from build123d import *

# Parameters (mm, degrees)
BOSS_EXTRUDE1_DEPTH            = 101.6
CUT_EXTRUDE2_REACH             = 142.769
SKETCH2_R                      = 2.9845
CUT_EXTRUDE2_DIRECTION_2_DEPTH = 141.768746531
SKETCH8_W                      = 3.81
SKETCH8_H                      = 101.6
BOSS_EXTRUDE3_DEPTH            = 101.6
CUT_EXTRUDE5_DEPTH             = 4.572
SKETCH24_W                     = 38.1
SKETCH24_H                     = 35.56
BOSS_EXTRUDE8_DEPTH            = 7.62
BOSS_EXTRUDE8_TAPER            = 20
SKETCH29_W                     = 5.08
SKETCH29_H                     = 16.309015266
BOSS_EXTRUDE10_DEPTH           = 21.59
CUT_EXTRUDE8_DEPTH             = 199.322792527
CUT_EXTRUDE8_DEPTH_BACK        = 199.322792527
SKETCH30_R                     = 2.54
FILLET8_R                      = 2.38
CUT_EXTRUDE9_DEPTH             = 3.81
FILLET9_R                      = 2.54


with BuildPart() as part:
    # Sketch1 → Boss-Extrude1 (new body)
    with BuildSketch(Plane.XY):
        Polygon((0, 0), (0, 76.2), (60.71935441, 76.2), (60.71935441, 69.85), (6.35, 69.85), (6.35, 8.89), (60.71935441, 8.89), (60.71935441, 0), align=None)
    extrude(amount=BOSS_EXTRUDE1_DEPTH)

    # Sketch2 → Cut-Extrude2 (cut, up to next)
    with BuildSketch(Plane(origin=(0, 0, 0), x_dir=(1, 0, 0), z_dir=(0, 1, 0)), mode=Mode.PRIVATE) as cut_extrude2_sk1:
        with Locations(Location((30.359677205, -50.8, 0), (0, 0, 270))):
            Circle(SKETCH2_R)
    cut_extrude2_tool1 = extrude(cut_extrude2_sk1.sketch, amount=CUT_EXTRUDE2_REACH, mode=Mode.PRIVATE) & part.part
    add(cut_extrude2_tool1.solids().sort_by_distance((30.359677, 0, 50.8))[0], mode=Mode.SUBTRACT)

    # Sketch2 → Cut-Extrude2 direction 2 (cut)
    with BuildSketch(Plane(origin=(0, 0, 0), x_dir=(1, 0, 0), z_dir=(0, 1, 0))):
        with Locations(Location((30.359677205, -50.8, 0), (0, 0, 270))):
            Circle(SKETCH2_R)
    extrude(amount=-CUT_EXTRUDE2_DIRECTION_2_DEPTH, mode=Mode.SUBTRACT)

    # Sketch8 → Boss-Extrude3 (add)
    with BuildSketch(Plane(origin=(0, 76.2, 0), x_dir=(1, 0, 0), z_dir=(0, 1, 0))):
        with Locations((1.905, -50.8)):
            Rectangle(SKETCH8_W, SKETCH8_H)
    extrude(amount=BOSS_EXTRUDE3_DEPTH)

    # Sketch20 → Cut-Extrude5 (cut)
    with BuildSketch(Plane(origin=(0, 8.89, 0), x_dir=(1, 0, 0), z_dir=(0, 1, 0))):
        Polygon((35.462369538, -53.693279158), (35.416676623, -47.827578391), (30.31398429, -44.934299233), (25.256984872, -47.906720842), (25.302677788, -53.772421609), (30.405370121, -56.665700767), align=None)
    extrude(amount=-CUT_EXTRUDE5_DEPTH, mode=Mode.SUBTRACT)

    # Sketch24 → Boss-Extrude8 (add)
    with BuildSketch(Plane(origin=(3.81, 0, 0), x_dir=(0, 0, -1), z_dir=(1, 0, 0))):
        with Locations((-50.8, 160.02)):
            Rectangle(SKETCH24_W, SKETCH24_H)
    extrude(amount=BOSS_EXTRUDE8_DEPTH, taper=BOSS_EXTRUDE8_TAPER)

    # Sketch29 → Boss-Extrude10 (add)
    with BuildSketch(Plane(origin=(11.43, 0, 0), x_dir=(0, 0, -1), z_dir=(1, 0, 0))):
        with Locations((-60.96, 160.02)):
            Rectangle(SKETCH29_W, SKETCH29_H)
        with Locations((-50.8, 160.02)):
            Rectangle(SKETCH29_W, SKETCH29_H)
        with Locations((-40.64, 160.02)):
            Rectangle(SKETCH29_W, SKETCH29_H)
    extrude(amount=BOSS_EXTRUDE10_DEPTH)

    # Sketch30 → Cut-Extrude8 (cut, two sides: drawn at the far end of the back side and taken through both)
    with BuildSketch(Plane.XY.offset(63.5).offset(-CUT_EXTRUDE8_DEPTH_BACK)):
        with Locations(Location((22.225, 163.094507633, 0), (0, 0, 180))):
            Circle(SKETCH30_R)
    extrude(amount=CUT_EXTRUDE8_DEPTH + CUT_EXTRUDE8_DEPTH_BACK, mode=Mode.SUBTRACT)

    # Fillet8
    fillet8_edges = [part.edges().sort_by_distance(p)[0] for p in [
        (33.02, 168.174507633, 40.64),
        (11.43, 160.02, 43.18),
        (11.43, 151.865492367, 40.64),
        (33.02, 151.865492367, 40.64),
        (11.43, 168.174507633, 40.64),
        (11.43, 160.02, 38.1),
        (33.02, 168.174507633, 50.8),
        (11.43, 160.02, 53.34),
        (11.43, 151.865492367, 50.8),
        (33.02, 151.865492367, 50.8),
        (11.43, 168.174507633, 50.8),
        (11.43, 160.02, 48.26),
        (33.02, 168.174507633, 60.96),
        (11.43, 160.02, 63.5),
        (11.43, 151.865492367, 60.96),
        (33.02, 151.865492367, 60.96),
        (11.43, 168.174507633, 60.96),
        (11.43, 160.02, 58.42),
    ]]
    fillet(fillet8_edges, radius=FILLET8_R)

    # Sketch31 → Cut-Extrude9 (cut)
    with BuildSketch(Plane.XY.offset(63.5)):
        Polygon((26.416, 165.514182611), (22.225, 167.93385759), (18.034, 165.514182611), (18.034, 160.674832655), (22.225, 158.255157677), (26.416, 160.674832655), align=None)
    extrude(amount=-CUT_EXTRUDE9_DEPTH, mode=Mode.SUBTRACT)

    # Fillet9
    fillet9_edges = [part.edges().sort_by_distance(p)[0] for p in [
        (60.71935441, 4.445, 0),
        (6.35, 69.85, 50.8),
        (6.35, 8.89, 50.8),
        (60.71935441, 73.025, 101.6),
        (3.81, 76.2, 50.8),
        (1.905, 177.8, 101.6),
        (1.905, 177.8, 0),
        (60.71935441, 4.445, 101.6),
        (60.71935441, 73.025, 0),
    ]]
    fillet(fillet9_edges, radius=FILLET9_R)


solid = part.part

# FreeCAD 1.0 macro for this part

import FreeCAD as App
import Part
import Sketcher

V = App.Vector
Q = App.Units.Quantity


def edges_at(feature, points):
    """Names of the edges that pass closest to the given points."""
    edges = feature.Shape.Edges
    near = lambda p: min(range(len(edges)), key=lambda i: edges[i].distToShape(Part.Vertex(*p))[0])
    return sorted({f"Edge{near(p) + 1}" for p in points})


def add_polygon(sketch, points):
    """Adds a closed chain of lines whose ends are joined by coincident constraints."""
    first, n = sketch.GeometryCount, len(points)
    for a, b in zip(points, points[1:] + points[:1]):
        sketch.addGeometry(Part.LineSegment(App.Vector(*a, 0), App.Vector(*b, 0)), False)
    for i in range(n):
        sketch.addConstraint(Sketcher.Constraint("Coincident", first + i, 2, first + (i + 1) % n, 1))

doc = App.newDocument("Part")
body = doc.addObject("PartDesign::Body", "Body")

# Sketch on XY plane
sketch1 = body.newObject("Sketcher::SketchObject", "Sketch")
sketch1.AttachmentSupport = (doc.getObject("XY_Plane"), [""])
sketch1.MapMode = "FlatFace"
add_polygon(sketch1, [(0, 76), (0, 0), (61, 0), (61, 9), (6, 9), (6, 70), (61, 70), (61, 76)])  # lines 0-7
sketch1.addConstraint([
    Sketcher.Constraint("Vertical", 0),
    Sketcher.Constraint("Horizontal", 1),
    Sketcher.Constraint("Vertical", 2),
    Sketcher.Constraint("Horizontal", 3),
    Sketcher.Constraint("Vertical", 4),
    Sketcher.Constraint("Horizontal", 5),
    Sketcher.Constraint("Vertical", 6),
    Sketcher.Constraint("Horizontal", 7),
    Sketcher.Constraint("Coincident", 0, 2, -1, 1),
    Sketcher.Constraint("Vertical", 2, 2, 5, 2),
    Sketcher.Constraint("DistanceY", 0, 2, 0, 1, Q("3 in")),
    Sketcher.Constraint("DistanceY", 4, 1, 4, 2, Q("2.4 in")),
    Sketcher.Constraint("DistanceY", 2, 1, 2, 2, Q("0.35 in")),
    Sketcher.Constraint("DistanceX", -1, 1, 3, 2, Q("0.25 in")),
    Sketcher.Constraint("DistanceX", 1, 1, 1, 2, Q("60.719354 mm")),
])
pad1 = body.newObject("PartDesign::Pad", "Pad")
pad1.Profile = sketch1
pad1.Length = Q("4 in")

# Sketch on XZ plane
sketch2 = body.newObject("Sketcher::SketchObject", "Sketch001")
sketch2.AttachmentSupport = (doc.getObject("XZ_Plane"), [""])
sketch2.MapMode = "FlatFace"
sketch2.addGeometry(Part.Circle(V(30.4, 50.8, 0), V(0, 0, 1), 3), False)
sketch2.addConstraint([
    Sketcher.Constraint("Diameter", 0, Q("0.235 in")),
    Sketcher.Constraint("DistanceY", -1, 1, 0, 3, Q("2 in")),
    Sketcher.Constraint("DistanceX", -1, 1, 0, 3, Q("30.359677 mm")),
])
pocket1 = body.newObject("PartDesign::Pocket", "Pocket")
pocket1.Profile = sketch2
pocket1.Type = "UpToFirst"

# Sketch on XZ plane
sketch3 = body.newObject("Sketcher::SketchObject", "Sketch002")
sketch3.AttachmentSupport = (doc.getObject("XZ_Plane"), [""])
sketch3.MapMode = "FlatFace"
sketch3.addGeometry(Part.Circle(V(30.4, 50.8, 0), V(0, 0, 1), 3), False)
sketch3.addConstraint([
    Sketcher.Constraint("Diameter", 0, Q("0.235 in")),
    Sketcher.Constraint("DistanceY", -1, 1, 0, 3, Q("2 in")),
    Sketcher.Constraint("DistanceX", -1, 1, 0, 3, Q("30.359677 mm")),
])
pocket2 = body.newObject("PartDesign::Pocket", "Pocket001")
pocket2.Profile = sketch3
pocket2.Length = 141.768747
pocket2.Reversed = True

# Sketch on XZ plane
sketch4 = body.newObject("Sketcher::SketchObject", "Sketch003")
sketch4.AttachmentSupport = (doc.getObject("XZ_Plane"), [""])
sketch4.MapMode = "FlatFace"
sketch4.AttachmentOffset = App.Placement(V(0, 0, -3 * 25.4), App.Rotation())
add_polygon(sketch4, [(0, 0), (0, 101.6), (3.8, 101.6), (3.8, 0)])  # lines 0-3
sketch4.addConstraint([
    Sketcher.Constraint("Vertical", 0),
    Sketcher.Constraint("Horizontal", 1),
    Sketcher.Constraint("Vertical", 2),
    Sketcher.Constraint("Horizontal", 3),
    Sketcher.Constraint("Coincident", 3, 2, -1, 1),
    Sketcher.Constraint("DistanceY", 0, 1, 0, 2, Q("4 in")),
    Sketcher.Constraint("DistanceX", 1, 1, 1, 2, Q("0.15 in")),
])
pad2 = body.newObject("PartDesign::Pad", "Pad001")
pad2.Profile = sketch4
pad2.Length = Q("4 in")
pad2.Reversed = True

# Sketch on XZ plane
sketch5 = body.newObject("Sketcher::SketchObject", "Sketch004")
sketch5.AttachmentSupport = (doc.getObject("XZ_Plane"), [""])
sketch5.MapMode = "FlatFace"
sketch5.AttachmentOffset = App.Placement(V(0, 0, -0.35 * 25.4), App.Rotation())
add_polygon(sketch5, [(35, 54), (35, 48), (30, 45), (25, 48), (25, 54), (30, 57)])  # lines 0-5
sketch5.addConstraint([
    Sketcher.Constraint("Parallel", 0, 3),
    Sketcher.Constraint("Parallel", 1, 4),
    Sketcher.Constraint("Parallel", 2, 5),
    Sketcher.Constraint("Equal", 0, 1),
    Sketcher.Constraint("Equal", 1, 2),
    Sketcher.Constraint("Equal", 2, 3),
    Sketcher.Constraint("DistanceY", -1, 1, 1, 2, Q("44.934299 mm")),
    Sketcher.Constraint("DistanceY", -1, 1, 4, 2, Q("56.665701 mm")),
    Sketcher.Constraint("DistanceX", 2, 2, 1, 2, Q("5.056999 mm")),
    Sketcher.Constraint("DistanceY", 2, 2, 3, 2, Q("5.865701 mm")),
    Sketcher.Constraint("DistanceX", 3, 2, 0, 2, Q("10.113999 mm")),
    Sketcher.Constraint("DistanceX", -1, 1, 4, 2, Q("30.40537 mm")),
])
pocket3 = body.newObject("PartDesign::Pocket", "Pocket002")
pocket3.Profile = sketch5
pocket3.Length = Q("0.18 in")
pocket3.Reversed = True

# Sketch on YZ plane
sketch6 = body.newObject("Sketcher::SketchObject", "Sketch005")
sketch6.AttachmentSupport = (doc.getObject("YZ_Plane"), [""])
sketch6.MapMode = "FlatFace"
sketch6.AttachmentOffset = App.Placement(V(0, 0, 0.15 * 25.4), App.Rotation())
add_polygon(sketch6, [(178, 70), (142, 70), (142, 32), (178, 32)])  # lines 0-3
sketch6.addConstraint([
    Sketcher.Constraint("Horizontal", 0),
    Sketcher.Constraint("Vertical", 1),
    Sketcher.Constraint("Horizontal", 2),
    Sketcher.Constraint("Vertical", 3),
    Sketcher.Constraint("DistanceX", 0, 2, 0, 1, Q("1.4 in")),
    Sketcher.Constraint("DistanceY", 1, 2, 1, 1, Q("1.5 in")),
    Sketcher.Constraint("DistanceX", -1, 1, 2, 2, Q("7 in")),
    Sketcher.Constraint("DistanceY", -1, 1, 0, 2, Q("2.75 in")),
])
pad3 = body.newObject("PartDesign::Pad", "Pad002")
pad3.Profile = sketch6
pad3.Length = Q("0.3 in")
pad3.TaperAngle = -20

# Sketch on YZ plane
sketch7 = body.newObject("Sketcher::SketchObject", "Sketch006")
sketch7.AttachmentSupport = (doc.getObject("YZ_Plane"), [""])
sketch7.MapMode = "FlatFace"
sketch7.AttachmentOffset = App.Placement(V(0, 0, 0.45 * 25.4), App.Rotation())
add_polygon(sketch7, [(168, 64), (152, 64), (152, 58), (168, 58)])  # lines 0-3
add_polygon(sketch7, [(168, 53), (152, 53), (152, 48), (168, 48)])  # lines 4-7
add_polygon(sketch7, [(168, 43), (152, 43), (152, 38), (168, 38)])  # lines 8-11
sketch7.addConstraint([
    Sketcher.Constraint("Horizontal", 0),
    Sketcher.Constraint("Vertical", 1),
    Sketcher.Constraint("Horizontal", 2),
    Sketcher.Constraint("Vertical", 3),
    Sketcher.Constraint("Horizontal", 4),
    Sketcher.Constraint("Vertical", 5),
    Sketcher.Constraint("Horizontal", 6),
    Sketcher.Constraint("Vertical", 7),
    Sketcher.Constraint("Horizontal", 8),
    Sketcher.Constraint("Vertical", 9),
    Sketcher.Constraint("Horizontal", 10),
    Sketcher.Constraint("Vertical", 11),
    Sketcher.Constraint("Vertical", 1, 2, 4, 2),
    Sketcher.Constraint("Vertical", 3, 2, 6, 2),
    Sketcher.Constraint("Vertical", 5, 2, 8, 2),
    Sketcher.Constraint("Vertical", 7, 2, 10, 2),
    Sketcher.Constraint("Equal", 3, 5),
    Sketcher.Constraint("Equal", 7, 9),
    Sketcher.Constraint("DistanceY", 1, 2, 1, 1, Q("0.2 in")),
    Sketcher.Constraint("DistanceY", -1, 1, 0, 2, Q("2.5 in")),
    Sketcher.Constraint("DistanceY", -1, 1, 4, 2, Q("2.1 in")),
    Sketcher.Constraint("DistanceY", -1, 1, 8, 2, Q("1.7 in")),
    Sketcher.Constraint("DistanceX", 0, 2, 0, 1, Q("16.309015 mm")),
    Sketcher.Constraint("DistanceX", -1, 1, 0, 2, Q("151.865492 mm")),
])
pad4 = body.newObject("PartDesign::Pad", "Pad003")
pad4.Profile = sketch7
pad4.Length = Q("0.85 in")

# Sketch on XY plane
sketch8 = body.newObject("Sketcher::SketchObject", "Sketch007")
sketch8.AttachmentSupport = (doc.getObject("XY_Plane"), [""])
sketch8.MapMode = "FlatFace"
sketch8.AttachmentOffset = App.Placement(V(0, 0, 2.5 * 25.4), App.Rotation())
sketch8.addGeometry(Part.Circle(V(22.2, 163.1, 0), V(0, 0, 1), 2.5), False)
sketch8.addConstraint([
    Sketcher.Constraint("Diameter", 0, Q("0.2 in")),
    Sketcher.Constraint("DistanceX", -1, 1, 0, 3, Q("0.875 in")),
    Sketcher.Constraint("DistanceY", -1, 1, 0, 3, Q("163.094508 mm")),
])
pocket4 = body.newObject("PartDesign::Pocket", "Pocket003")
pocket4.Profile = sketch8
pocket4.Type = "ThroughAll"
pocket4.Midplane = True
doc.recompute()

fillet = body.newObject("PartDesign::Fillet", "Fillet")
fillet.Base = (pocket4, edges_at(pocket4, [
    (33.02, 168.175, 40.64),
    (11.43, 160.02, 43.18),
    (11.43, 151.865, 40.64),
    (33.02, 151.865, 40.64),
    (11.43, 168.175, 40.64),
    (11.43, 160.02, 38.1),
    (33.02, 168.175, 50.8),
    (11.43, 160.02, 53.34),
    (11.43, 151.865, 50.8),
    (33.02, 151.865, 50.8),
    (11.43, 168.175, 50.8),
    (11.43, 160.02, 48.26),
    (33.02, 168.175, 60.96),
    (11.43, 160.02, 63.5),
    (11.43, 151.865, 60.96),
    (33.02, 151.865, 60.96),
    (11.43, 168.175, 60.96),
    (11.43, 160.02, 58.42),
]))
fillet.Radius = 2.38

# Sketch on XY plane
sketch9 = body.newObject("Sketcher::SketchObject", "Sketch008")
sketch9.AttachmentSupport = (doc.getObject("XY_Plane"), [""])
sketch9.MapMode = "FlatFace"
sketch9.AttachmentOffset = App.Placement(V(0, 0, 2.5 * 25.4), App.Rotation())
add_polygon(sketch9, [(26.4, 165.5), (22.2, 167.9), (18, 165.5), (18, 160.7), (22.2, 158.3), (26.4, 160.7)])  # lines 0-5
sketch9.addConstraint([
    Sketcher.Constraint("Vertical", 2),
    Sketcher.Constraint("Vertical", 5),
    Sketcher.Constraint("Parallel", 0, 3),
    Sketcher.Constraint("Parallel", 1, 4),
    Sketcher.Constraint("Horizontal", 2, 2, 4, 2),
    Sketcher.Constraint("Horizontal", 1, 2, 5, 2),
    Sketcher.Constraint("Vertical", 0, 2, 3, 2),
    Sketcher.Constraint("Angle", 0, Q("150 deg")),
    Sketcher.Constraint("DistanceX", -1, 1, 1, 2, Q("0.71 in")),
    Sketcher.Constraint("DistanceX", -1, 1, 4, 2, Q("1.04 in")),
    Sketcher.Constraint("DistanceY", 2, 2, 2, 1, Q("4.83935 mm")),
    Sketcher.Constraint("DistanceY", -1, 1, 0, 2, Q("167.933858 mm")),
])
pocket5 = body.newObject("PartDesign::Pocket", "Pocket004")
pocket5.Profile = sketch9
pocket5.Length = Q("0.15 in")
doc.recompute()

fillet2 = body.newObject("PartDesign::Fillet", "Fillet001")
fillet2.Base = (pocket5, edges_at(pocket5, [
    (60.719, 4.445, 0),
    (6.35, 69.85, 50.8),
    (6.35, 8.89, 50.8),
    (60.719, 73.025, 101.6),
    (3.81, 76.2, 50.8),
    (1.905, 177.8, 101.6),
    (1.905, 177.8, 0),
    (60.719, 4.445, 101.6),
    (60.719, 73.025, 0),
]))
fillet2.Radius = Q("0.1 in")

doc.recompute()
